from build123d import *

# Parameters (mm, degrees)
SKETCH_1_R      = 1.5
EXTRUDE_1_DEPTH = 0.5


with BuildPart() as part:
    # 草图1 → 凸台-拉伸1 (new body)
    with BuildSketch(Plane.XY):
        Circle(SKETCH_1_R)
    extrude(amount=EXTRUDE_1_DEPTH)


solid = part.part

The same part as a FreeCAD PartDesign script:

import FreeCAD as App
import Part
import Sketcher
Q = App.Units.Quantity

doc = App.newDocument("Part")
params = doc.addObject("Spreadsheet::Sheet", "Params")
for row, (alias, value) in enumerate([
    ("sketch1_diameter", "3 mm"),
    ("pad1_length", "0.5 mm"),
], start=1):
    params.set(f"A{row}", alias)
    params.set(f"B{row}", "=" + value)
    params.setAlias(f"B{row}", alias)

body = doc.addObject("PartDesign::Body", "Body")

# Sketch on XY plane
sketch1 = doc.addObject("Sketcher::SketchObject", "Sketch")
body.addObject(sketch1)
sketch1.AttachmentSupport = (doc.XY_Plane, [""])
sketch1.MapMode = "FlatFace"
sketch1.addGeometry(Part.Circle(App.Vector(0, 0, 0), App.Vector(0, 0, 1), 1.5), False)
sketch1.addConstraint([
    Sketcher.Constraint("Coincident", 0, 3, -1, 1),
    Sketcher.Constraint("Diameter", 0, Q("3 mm")),
])
sketch1.setExpression("Constraints[1]", "Params.sketch1_diameter")
pad1 = doc.addObject("PartDesign::Pad", "Pad")
body.addObject(pad1)
pad1.Profile = sketch1
pad1.setExpression("Length", "Params.pad1_length")

doc.recompute()
